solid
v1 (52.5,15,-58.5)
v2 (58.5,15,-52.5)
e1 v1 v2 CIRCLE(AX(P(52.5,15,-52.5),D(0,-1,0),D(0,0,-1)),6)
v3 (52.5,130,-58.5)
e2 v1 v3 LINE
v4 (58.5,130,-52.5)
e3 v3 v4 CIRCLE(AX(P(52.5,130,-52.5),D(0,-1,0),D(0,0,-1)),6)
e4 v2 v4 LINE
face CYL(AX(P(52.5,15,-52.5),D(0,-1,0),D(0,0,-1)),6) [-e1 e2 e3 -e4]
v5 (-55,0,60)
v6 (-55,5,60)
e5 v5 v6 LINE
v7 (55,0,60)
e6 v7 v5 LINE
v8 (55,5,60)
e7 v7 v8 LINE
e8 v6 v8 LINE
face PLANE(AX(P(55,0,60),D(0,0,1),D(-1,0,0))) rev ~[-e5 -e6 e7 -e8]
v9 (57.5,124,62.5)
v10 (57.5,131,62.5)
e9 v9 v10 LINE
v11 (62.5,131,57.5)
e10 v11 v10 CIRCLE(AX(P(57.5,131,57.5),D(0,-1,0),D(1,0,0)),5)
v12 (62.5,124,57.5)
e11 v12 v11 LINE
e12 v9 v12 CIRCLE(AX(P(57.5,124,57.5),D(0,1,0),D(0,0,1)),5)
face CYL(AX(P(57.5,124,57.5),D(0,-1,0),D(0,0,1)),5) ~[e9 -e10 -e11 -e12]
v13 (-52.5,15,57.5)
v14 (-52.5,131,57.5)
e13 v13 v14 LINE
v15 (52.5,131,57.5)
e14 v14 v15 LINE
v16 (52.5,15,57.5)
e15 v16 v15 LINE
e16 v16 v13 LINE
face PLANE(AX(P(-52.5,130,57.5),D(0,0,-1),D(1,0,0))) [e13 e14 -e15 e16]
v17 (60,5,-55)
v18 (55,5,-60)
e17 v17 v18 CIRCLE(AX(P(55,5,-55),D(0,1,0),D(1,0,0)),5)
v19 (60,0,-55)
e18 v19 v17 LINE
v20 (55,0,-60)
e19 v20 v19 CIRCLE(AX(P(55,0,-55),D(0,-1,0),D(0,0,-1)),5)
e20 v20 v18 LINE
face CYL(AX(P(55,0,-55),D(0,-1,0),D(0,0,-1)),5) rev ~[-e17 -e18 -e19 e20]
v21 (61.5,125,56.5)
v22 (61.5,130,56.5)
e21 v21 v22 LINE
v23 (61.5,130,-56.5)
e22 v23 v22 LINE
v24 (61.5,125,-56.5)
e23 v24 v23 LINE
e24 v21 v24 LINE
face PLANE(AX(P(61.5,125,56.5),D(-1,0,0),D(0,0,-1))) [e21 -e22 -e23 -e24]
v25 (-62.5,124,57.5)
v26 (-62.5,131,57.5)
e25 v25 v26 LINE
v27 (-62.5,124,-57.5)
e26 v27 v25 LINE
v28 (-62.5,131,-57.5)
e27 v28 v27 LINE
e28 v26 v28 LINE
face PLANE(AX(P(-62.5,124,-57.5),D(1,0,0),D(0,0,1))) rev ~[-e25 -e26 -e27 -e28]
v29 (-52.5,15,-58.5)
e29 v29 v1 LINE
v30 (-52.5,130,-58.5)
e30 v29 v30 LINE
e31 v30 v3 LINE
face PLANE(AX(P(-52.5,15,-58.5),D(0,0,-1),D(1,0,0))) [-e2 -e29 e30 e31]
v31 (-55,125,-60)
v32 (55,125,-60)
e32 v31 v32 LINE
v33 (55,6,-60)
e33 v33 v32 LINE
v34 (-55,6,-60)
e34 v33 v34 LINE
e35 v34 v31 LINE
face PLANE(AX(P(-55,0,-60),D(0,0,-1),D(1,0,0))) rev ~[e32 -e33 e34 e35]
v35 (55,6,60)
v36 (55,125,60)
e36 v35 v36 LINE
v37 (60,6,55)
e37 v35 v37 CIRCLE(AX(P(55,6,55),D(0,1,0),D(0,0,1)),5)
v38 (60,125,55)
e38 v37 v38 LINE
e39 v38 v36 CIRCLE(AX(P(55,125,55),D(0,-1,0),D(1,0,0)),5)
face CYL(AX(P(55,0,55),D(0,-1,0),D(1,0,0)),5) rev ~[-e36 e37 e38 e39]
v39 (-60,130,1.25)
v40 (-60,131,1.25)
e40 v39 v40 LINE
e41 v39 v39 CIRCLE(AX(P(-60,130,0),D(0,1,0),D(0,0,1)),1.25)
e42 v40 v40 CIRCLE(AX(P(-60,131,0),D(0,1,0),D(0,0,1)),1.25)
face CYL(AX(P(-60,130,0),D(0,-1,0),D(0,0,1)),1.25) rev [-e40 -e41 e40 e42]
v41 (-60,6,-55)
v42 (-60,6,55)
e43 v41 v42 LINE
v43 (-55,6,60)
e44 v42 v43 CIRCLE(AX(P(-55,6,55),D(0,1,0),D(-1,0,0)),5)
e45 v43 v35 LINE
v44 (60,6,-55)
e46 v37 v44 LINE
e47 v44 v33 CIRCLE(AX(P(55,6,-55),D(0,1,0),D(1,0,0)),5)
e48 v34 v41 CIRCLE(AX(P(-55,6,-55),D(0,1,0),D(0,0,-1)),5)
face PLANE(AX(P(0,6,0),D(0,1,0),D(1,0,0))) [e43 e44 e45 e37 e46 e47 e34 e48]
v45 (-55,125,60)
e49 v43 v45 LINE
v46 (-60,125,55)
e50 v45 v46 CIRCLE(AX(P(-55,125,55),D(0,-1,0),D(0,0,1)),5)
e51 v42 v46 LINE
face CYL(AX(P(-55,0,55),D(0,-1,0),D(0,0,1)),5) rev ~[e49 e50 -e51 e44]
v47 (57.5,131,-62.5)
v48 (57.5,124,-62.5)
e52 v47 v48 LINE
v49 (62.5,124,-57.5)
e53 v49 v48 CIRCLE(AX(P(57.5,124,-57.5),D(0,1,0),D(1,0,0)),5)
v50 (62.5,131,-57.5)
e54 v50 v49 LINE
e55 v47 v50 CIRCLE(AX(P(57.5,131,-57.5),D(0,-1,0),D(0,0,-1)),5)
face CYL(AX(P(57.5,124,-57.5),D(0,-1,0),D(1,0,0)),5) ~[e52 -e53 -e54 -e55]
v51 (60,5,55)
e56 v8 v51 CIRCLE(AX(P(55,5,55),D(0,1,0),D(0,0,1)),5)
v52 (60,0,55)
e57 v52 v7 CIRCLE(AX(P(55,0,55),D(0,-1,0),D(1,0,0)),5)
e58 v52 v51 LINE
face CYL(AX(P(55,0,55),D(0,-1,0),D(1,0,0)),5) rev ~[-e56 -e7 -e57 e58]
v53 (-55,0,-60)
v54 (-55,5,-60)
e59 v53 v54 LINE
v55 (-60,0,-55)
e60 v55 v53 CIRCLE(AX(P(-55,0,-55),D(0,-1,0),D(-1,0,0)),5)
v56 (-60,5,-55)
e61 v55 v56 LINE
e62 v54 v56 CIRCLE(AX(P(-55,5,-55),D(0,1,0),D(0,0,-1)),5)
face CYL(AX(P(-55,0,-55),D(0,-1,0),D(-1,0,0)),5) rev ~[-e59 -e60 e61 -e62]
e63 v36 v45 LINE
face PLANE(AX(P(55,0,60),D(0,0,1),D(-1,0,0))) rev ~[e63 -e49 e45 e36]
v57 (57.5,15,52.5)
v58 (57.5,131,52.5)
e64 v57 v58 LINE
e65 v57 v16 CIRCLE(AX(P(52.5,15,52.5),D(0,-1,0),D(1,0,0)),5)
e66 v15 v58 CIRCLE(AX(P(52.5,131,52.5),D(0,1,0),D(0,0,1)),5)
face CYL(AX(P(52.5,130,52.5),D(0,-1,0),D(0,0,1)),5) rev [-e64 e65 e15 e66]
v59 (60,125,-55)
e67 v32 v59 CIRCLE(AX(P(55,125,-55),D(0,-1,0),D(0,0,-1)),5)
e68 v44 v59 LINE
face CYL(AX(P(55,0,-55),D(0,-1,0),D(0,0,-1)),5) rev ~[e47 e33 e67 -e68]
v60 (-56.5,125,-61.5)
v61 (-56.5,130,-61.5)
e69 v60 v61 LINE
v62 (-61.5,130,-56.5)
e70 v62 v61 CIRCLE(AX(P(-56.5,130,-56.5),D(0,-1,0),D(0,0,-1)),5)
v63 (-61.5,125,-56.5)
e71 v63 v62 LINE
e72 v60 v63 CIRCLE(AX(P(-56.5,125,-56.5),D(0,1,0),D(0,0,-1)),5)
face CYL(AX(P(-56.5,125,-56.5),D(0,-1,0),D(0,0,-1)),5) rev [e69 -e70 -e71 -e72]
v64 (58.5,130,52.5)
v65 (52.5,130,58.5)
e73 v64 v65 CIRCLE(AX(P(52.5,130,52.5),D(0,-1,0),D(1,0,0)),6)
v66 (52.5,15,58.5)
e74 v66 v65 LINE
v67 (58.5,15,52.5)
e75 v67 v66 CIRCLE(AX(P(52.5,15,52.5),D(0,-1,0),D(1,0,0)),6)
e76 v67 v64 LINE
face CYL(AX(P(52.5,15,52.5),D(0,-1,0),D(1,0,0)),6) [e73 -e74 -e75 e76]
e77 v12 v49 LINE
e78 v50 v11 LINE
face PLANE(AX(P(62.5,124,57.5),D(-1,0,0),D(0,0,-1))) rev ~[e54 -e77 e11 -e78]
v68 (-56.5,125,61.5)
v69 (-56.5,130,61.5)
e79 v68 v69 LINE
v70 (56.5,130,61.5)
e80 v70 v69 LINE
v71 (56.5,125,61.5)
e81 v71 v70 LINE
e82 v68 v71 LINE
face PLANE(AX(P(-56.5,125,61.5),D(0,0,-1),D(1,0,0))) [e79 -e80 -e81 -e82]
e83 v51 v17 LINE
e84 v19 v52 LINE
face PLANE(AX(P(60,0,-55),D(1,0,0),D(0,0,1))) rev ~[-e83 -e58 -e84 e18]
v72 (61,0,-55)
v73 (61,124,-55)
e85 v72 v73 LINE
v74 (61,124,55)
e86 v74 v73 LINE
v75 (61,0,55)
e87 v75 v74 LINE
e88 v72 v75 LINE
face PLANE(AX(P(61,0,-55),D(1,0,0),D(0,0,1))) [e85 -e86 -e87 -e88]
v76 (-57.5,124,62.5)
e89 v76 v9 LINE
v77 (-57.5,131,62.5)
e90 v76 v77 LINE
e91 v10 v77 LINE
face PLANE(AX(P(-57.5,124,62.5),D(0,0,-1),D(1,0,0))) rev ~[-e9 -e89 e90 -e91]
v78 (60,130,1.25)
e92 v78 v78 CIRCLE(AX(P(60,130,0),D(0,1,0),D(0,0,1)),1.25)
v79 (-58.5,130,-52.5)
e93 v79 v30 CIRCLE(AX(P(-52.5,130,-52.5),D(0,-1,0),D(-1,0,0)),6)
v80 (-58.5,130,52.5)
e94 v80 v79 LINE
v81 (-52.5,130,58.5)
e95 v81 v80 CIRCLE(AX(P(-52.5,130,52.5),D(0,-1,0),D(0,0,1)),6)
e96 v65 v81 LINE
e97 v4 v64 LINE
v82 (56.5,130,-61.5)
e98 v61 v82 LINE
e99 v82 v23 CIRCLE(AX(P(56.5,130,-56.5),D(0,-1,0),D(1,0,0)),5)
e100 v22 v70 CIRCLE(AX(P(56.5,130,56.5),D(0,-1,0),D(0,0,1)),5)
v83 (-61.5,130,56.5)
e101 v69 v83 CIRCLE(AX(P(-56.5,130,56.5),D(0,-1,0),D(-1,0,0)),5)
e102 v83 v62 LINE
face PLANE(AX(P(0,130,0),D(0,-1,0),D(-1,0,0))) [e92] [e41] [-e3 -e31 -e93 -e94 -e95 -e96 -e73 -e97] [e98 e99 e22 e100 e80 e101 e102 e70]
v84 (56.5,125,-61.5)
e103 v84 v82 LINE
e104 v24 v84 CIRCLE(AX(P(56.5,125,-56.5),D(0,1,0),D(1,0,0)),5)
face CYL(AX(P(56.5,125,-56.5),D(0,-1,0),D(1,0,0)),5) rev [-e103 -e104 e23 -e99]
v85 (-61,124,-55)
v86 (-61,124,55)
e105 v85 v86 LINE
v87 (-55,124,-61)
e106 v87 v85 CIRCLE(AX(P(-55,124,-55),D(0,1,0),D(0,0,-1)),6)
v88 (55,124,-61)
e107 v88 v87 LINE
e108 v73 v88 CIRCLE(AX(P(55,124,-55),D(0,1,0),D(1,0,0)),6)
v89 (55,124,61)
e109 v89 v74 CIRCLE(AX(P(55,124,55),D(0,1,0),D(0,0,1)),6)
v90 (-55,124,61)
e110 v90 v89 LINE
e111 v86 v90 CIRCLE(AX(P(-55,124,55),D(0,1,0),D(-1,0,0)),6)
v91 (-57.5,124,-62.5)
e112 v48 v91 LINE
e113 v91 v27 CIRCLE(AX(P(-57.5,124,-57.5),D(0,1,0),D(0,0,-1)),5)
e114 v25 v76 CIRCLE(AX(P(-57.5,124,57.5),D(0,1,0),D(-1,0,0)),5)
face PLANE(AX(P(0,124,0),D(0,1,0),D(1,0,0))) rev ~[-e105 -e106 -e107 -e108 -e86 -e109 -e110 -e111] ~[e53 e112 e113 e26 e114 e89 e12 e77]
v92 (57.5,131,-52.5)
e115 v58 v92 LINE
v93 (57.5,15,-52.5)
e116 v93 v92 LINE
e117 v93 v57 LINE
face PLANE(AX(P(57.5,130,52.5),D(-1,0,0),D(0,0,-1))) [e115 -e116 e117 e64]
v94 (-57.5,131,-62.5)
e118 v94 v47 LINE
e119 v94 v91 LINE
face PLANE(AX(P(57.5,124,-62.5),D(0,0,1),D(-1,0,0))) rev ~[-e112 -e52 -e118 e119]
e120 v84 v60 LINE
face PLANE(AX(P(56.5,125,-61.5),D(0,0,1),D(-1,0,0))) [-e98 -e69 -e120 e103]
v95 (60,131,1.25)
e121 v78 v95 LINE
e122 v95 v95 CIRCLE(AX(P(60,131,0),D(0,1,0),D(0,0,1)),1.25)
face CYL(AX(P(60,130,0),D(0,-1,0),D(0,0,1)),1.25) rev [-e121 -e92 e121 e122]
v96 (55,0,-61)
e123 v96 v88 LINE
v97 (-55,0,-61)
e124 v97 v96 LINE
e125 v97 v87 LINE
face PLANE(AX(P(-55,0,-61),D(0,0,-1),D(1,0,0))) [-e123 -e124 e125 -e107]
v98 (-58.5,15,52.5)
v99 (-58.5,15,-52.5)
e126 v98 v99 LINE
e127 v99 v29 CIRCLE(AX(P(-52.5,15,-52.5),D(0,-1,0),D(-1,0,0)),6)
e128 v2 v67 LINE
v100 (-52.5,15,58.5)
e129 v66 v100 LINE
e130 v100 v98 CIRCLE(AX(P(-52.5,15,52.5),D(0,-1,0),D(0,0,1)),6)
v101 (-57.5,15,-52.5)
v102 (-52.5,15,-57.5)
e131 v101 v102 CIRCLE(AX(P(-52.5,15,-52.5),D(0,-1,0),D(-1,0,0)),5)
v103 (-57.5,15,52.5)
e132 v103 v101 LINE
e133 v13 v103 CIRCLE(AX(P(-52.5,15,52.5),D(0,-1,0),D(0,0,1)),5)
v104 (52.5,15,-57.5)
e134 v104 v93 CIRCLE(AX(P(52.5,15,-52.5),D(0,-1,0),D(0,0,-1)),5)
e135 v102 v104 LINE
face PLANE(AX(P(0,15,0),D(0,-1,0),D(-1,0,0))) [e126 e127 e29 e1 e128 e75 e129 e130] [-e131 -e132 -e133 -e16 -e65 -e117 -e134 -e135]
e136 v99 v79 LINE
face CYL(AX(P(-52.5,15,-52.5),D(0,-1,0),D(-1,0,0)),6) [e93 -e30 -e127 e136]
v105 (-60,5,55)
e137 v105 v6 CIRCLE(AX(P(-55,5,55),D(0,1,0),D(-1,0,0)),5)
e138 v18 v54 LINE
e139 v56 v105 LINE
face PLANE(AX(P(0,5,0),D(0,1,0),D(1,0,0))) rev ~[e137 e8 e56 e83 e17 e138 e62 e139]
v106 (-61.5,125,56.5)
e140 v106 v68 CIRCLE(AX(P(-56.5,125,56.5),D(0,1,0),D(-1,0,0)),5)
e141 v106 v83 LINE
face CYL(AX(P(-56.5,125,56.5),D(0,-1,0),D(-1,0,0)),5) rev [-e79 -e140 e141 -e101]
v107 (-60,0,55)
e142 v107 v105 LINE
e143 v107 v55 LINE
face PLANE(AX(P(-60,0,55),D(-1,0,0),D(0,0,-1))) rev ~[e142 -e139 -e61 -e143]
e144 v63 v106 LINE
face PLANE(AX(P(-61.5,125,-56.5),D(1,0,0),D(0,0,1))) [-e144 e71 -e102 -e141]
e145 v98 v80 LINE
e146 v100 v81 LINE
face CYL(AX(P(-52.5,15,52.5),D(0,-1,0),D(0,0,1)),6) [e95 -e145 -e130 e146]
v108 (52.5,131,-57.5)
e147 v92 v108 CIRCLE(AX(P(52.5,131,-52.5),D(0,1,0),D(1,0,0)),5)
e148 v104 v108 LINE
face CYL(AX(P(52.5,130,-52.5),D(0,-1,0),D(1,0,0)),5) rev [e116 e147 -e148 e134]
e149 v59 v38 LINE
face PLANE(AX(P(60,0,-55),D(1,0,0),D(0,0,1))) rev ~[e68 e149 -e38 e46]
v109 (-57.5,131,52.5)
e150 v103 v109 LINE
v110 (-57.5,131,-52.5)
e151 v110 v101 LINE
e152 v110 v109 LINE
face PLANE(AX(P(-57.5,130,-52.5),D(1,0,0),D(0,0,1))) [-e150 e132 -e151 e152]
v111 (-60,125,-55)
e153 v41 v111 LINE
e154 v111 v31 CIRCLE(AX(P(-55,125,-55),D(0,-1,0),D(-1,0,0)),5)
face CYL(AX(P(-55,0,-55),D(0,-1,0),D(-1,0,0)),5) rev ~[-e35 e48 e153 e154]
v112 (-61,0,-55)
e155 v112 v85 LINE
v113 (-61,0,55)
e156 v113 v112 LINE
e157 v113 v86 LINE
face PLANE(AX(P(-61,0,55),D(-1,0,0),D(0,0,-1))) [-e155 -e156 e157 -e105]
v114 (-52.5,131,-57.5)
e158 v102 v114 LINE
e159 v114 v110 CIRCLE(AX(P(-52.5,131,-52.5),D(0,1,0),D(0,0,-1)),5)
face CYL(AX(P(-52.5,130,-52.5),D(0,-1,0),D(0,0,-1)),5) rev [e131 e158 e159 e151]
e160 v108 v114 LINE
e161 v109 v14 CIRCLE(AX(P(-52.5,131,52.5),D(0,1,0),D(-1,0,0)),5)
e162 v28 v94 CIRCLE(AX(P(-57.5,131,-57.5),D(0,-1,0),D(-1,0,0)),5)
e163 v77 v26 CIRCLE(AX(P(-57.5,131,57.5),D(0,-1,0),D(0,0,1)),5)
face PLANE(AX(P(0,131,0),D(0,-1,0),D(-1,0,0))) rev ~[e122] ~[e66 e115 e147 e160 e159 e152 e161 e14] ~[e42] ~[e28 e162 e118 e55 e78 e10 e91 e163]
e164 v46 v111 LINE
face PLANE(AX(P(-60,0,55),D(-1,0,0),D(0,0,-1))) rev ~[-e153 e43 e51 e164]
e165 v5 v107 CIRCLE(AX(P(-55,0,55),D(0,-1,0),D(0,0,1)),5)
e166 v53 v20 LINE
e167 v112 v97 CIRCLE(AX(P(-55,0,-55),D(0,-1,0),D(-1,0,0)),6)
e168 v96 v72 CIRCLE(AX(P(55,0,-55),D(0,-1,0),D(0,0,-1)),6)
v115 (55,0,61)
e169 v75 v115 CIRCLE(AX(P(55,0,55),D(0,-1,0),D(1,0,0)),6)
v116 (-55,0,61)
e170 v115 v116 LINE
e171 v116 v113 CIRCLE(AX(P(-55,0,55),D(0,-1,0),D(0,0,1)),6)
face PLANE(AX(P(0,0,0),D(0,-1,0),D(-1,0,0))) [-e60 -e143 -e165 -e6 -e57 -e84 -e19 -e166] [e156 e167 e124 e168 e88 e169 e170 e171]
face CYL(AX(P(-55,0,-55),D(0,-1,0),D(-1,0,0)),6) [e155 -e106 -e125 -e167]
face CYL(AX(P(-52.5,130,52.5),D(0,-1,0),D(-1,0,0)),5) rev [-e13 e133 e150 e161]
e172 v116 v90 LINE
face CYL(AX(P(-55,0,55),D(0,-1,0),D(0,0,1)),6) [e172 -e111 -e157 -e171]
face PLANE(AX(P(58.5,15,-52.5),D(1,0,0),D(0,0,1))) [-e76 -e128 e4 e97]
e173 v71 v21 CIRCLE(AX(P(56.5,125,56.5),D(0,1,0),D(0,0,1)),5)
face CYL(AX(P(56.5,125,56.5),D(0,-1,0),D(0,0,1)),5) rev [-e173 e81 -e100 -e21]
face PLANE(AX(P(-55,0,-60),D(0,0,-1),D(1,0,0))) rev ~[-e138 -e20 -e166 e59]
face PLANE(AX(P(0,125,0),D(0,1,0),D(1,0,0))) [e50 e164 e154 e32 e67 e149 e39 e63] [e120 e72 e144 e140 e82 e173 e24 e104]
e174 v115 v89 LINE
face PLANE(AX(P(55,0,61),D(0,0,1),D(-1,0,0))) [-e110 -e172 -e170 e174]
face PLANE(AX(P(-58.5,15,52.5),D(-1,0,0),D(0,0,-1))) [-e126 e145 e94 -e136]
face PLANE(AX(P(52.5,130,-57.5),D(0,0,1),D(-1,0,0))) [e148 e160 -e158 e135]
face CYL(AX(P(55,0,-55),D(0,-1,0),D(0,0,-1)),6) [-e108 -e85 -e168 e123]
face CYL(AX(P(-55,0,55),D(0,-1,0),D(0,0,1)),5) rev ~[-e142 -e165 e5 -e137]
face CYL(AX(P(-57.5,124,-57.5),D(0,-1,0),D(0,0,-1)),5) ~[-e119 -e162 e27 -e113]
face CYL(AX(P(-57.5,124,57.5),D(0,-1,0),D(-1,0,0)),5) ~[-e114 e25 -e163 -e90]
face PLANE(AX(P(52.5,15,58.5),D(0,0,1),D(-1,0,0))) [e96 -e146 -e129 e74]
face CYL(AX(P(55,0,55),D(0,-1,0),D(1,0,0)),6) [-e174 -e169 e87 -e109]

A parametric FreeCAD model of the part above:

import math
import FreeCAD as App
import Part
import Sketcher

V = App.Vector

doc = App.newDocument("Part")
body = doc.addObject("PartDesign::Body", "Body")

sketch1 = body.newObject("Sketcher::SketchObject", "Sketch")
sketch1.AttachmentSupport = (doc.getObject("XZ_Plane"), [""])
sketch1.MapMode = "FlatFace"
sketch1.addGeometry([
    Part.LineSegment(V(-55, 61, 0), V(55, 61, 0)),
    Part.ArcOfCircle(Part.Circle(V(55, 55, 0), V(0, 0, 1), 6), math.radians(0), math.radians(90)),
    Part.LineSegment(V(61, 55, 0), V(61, -55, 0)),
    Part.ArcOfCircle(Part.Circle(V(55, -55, 0), V(0, 0, 1), 6), math.radians(-90), math.radians(0)),
    Part.LineSegment(V(55, -61, 0), V(-55, -61, 0)),
    Part.ArcOfCircle(Part.Circle(V(-55, -55, 0), V(0, 0, 1), 6), math.radians(180), math.radians(270)),
    Part.LineSegment(V(-61, -55, 0), V(-61, 55, 0)),
    Part.ArcOfCircle(Part.Circle(V(-55, 55, 0), V(0, 0, 1), 6), math.radians(90), math.radians(180)),
    Part.LineSegment(V(55, 60, 0), V(-55, 60, 0)),
    Part.ArcOfCircle(Part.Circle(V(-55, 55, 0), V(0, 0, 1), 5), math.radians(90), math.radians(180)),
    Part.LineSegment(V(-60, 55, 0), V(-60, -55, 0)),
    Part.ArcOfCircle(Part.Circle(V(-55, -55, 0), V(0, 0, 1), 5), math.radians(180), math.radians(270)),
    Part.LineSegment(V(-55, -60, 0), V(55, -60, 0)),
    Part.ArcOfCircle(Part.Circle(V(55, -55, 0), V(0, 0, 1), 5), math.radians(-90), math.radians(0)),
    Part.LineSegment(V(60, -55, 0), V(60, 55, 0)),
    Part.ArcOfCircle(Part.Circle(V(55, 55, 0), V(0, 0, 1), 5), math.radians(0), math.radians(90)),
], False)
sketch1.addConstraint([
    Sketcher.Constraint("Tangent", 0, 2, 1, 2),
    Sketcher.Constraint("Tangent", 1, 1, 2, 1),
    Sketcher.Constraint("Tangent", 2, 2, 3, 2),
    Sketcher.Constraint("Tangent", 3, 1, 4, 1),
    Sketcher.Constraint("Tangent", 4, 2, 5, 2),
    Sketcher.Constraint("Tangent", 5, 1, 6, 1),
    Sketcher.Constraint("Tangent", 6, 2, 7, 2),
    Sketcher.Constraint("Tangent", 7, 1, 0, 1),
    Sketcher.Constraint("Tangent", 8, 2, 9, 1),
    Sketcher.Constraint("Tangent", 9, 2, 10, 1),
    Sketcher.Constraint("Tangent", 10, 2, 11, 1),
    Sketcher.Constraint("Tangent", 11, 2, 12, 1),
    Sketcher.Constraint("Tangent", 12, 2, 13, 1),
    Sketcher.Constraint("Tangent", 13, 2, 14, 1),
    Sketcher.Constraint("Tangent", 14, 2, 15, 1),
    Sketcher.Constraint("Tangent", 15, 2, 8, 1),
    Sketcher.Constraint("Horizontal", 0),
    Sketcher.Constraint("Vertical", 2),
    Sketcher.Constraint("Horizontal", 4),
    Sketcher.Constraint("Vertical", 6),
    Sketcher.Constraint("Horizontal", 8),
    Sketcher.Constraint("Vertical", 10),
    Sketcher.Constraint("Horizontal", 12),
    Sketcher.Constraint("Vertical", 14),
    Sketcher.Constraint("Coincident", 9, 3, 7, 3),
    Sketcher.Constraint("Coincident", 11, 3, 5, 3),
    Sketcher.Constraint("Coincident", 13, 3, 3, 3),
    Sketcher.Constraint("Equal", 1, 3),
    Sketcher.Constraint("Equal", 3, 5),
    Sketcher.Constraint("Equal", 5, 7),
    Sketcher.Constraint("Equal", 13, 15),
    Sketcher.Constraint("Symmetric", 1, 3, 5, 3, -1, 1),
    Sketcher.Constraint("Equal", 12, 2),
    Sketcher.Constraint("Radius", 1, 6.0),
    Sketcher.Constraint("Radius", 9, 5.0),
    Sketcher.Constraint("DistanceX", 0, 1, 0, 2, 110.0),
])
pad1 = body.newObject("PartDesign::Pad", "Pad")
pad1.Profile = sketch1
pad1.Length = 125
pad1.Reversed = True

sketch2 = body.newObject("Sketcher::SketchObject", "Sketch001")
sketch2.AttachmentSupport = (doc.getObject("XZ_Plane"), [""])
sketch2.MapMode = "FlatFace"
sketch2.AttachmentOffset = App.Placement(V(0, 0, -5), App.Rotation())
sketch2.addGeometry([
    Part.LineSegment(V(-60, -55, 0), V(-60, 55, 0)),
    Part.ArcOfCircle(Part.Circle(V(-55, 55, 0), V(0, 0, 1), 5), math.radians(90), math.radians(180)),
    Part.LineSegment(V(-55, 60, 0), V(55, 60, 0)),
    Part.ArcOfCircle(Part.Circle(V(55, 55, 0), V(0, 0, 1), 5), math.radians(0), math.radians(90)),
    Part.LineSegment(V(60, 55, 0), V(60, -55, 0)),
    Part.ArcOfCircle(Part.Circle(V(55, -55, 0), V(0, 0, 1), 5), math.radians(-90), math.radians(0)),
    Part.LineSegment(V(55, -60, 0), V(-55, -60, 0)),
    Part.ArcOfCircle(Part.Circle(V(-55, -55, 0), V(0, 0, 1), 5), math.radians(180), math.radians(270)),
], False)
sketch2.addConstraint([
    Sketcher.Constraint("Tangent", 0, 2, 1, 2),
    Sketcher.Constraint("Tangent", 1, 1, 2, 1),
    Sketcher.Constraint("Tangent", 2, 2, 3, 2),
    Sketcher.Constraint("Tangent", 3, 1, 4, 1),
    Sketcher.Constraint("Tangent", 4, 2, 5, 2),
    Sketcher.Constraint("Tangent", 5, 1, 6, 1),
    Sketcher.Constraint("Tangent", 6, 2, 7, 2),
    Sketcher.Constraint("Tangent", 7, 1, 0, 1),
    Sketcher.Constraint("Vertical", 0),
    Sketcher.Constraint("Horizontal", 2),
    Sketcher.Constraint("Vertical", 4),
    Sketcher.Constraint("Horizontal", 6),
    Sketcher.Constraint("Equal", 1, 3),
    Sketcher.Constraint("Equal", 3, 5),
    Sketcher.Constraint("Equal", 5, 7),
    Sketcher.Constraint("Symmetric", 1, 3, 5, 3, -1, 1),
    Sketcher.Constraint("Equal", 6, 0),
    Sketcher.Constraint("Radius", 1, 5.0),
    Sketcher.Constraint("DistanceX", 2, 1, 2, 2, 110.0),
])
pad2 = body.newObject("PartDesign::Pad", "Pad001")
pad2.Profile = sketch2
pad2.Length = 1
pad2.Reversed = True
body2 = doc.addObject("PartDesign::Body", "Body001")

sketch3 = body2.newObject("Sketcher::SketchObject", "Sketch002")
sketch3.AttachmentSupport = (doc.getObject("XZ_Plane001"), [""])
sketch3.MapMode = "FlatFace"
sketch3.AttachmentOffset = App.Placement(V(0, 0, -15), App.Rotation())
sketch3.addGeometry([
    Part.LineSegment(V(52, -58, 0), V(-52, -58, 0)),
    Part.ArcOfCircle(Part.Circle(V(-52, -52, 0), V(0, 0, 1), 6), math.radians(180), math.radians(270)),
    Part.LineSegment(V(-58, -52, 0), V(-58, 52, 0)),
    Part.ArcOfCircle(Part.Circle(V(-52, 52, 0), V(0, 0, 1), 6), math.radians(90), math.radians(180)),
    Part.LineSegment(V(-52, 58, 0), V(52, 58, 0)),
    Part.ArcOfCircle(Part.Circle(V(52, 52, 0), V(0, 0, 1), 6), math.radians(0), math.radians(90)),
    Part.LineSegment(V(58, 52, 0), V(58, -52, 0)),
    Part.ArcOfCircle(Part.Circle(V(52, -52, 0), V(0, 0, 1), 6), math.radians(-90), math.radians(0)),
    Part.LineSegment(V(-52, -58, 0), V(52, -58, 0)),
    Part.ArcOfCircle(Part.Circle(V(52, -52, 0), V(0, 0, 1), 5), math.radians(-90), math.radians(0)),
    Part.LineSegment(V(58, -52, 0), V(58, 52, 0)),
    Part.ArcOfCircle(Part.Circle(V(52, 52, 0), V(0, 0, 1), 5), math.radians(0), math.radians(90)),
    Part.LineSegment(V(52, 58, 0), V(-52, 58, 0)),
    Part.ArcOfCircle(Part.Circle(V(-52, 52, 0), V(0, 0, 1), 5), math.radians(90), math.radians(180)),
    Part.LineSegment(V(-58, 52, 0), V(-58, -52, 0)),
    Part.ArcOfCircle(Part.Circle(V(-52, -52, 0), V(0, 0, 1), 5), math.radians(180), math.radians(270)),
], False)
sketch3.addConstraint([
    Sketcher.Constraint("Tangent", 0, 2, 1, 2),
    Sketcher.Constraint("Tangent", 1, 1, 2, 1),
    Sketcher.Constraint("Tangent", 2, 2, 3, 2),
    Sketcher.Constraint("Tangent", 3, 1, 4, 1),
    Sketcher.Constraint("Tangent", 4, 2, 5, 2),
    Sketcher.Constraint("Tangent", 5, 1, 6, 1),
    Sketcher.Constraint("Tangent", 6, 2, 7, 2),
    Sketcher.Constraint("Tangent", 7, 1, 0, 1),
    Sketcher.Constraint("Tangent", 8, 2, 9, 1),
    Sketcher.Constraint("Tangent", 9, 2, 10, 1),
    Sketcher.Constraint("Tangent", 10, 2, 11, 1),
    Sketcher.Constraint("Tangent", 11, 2, 12, 1),
    Sketcher.Constraint("Tangent", 12, 2, 13, 1),
    Sketcher.Constraint("Tangent", 13, 2, 14, 1),
    Sketcher.Constraint("Tangent", 14, 2, 15, 1),
    Sketcher.Constraint("Tangent", 15, 2, 8, 1),
    Sketcher.Constraint("Horizontal", 0),
    Sketcher.Constraint("Vertical", 2),
    Sketcher.Constraint("Horizontal", 4),
    Sketcher.Constraint("Vertical", 6),
    Sketcher.Constraint("Horizontal", 8),
    Sketcher.Constraint("Vertical", 10),
    Sketcher.Constraint("Horizontal", 12),
    Sketcher.Constraint("Vertical", 14),
    Sketcher.Constraint("Coincident", 9, 3, 7, 3),
    Sketcher.Constraint("Coincident", 11, 3, 5, 3),
    Sketcher.Constraint("Coincident", 13, 3, 3, 3),
    Sketcher.Constraint("Equal", 1, 3),
    Sketcher.Constraint("Equal", 3, 5),
    Sketcher.Constraint("Equal", 5, 7),
    Sketcher.Constraint("Equal", 13, 15),
    Sketcher.Constraint("Symmetric", 1, 3, 5, 3, -1, 1),
    Sketcher.Constraint("Equal", 12, 2),
    Sketcher.Constraint("Radius", 1, 6.0),
    Sketcher.Constraint("Radius", 9, 5.0),
    Sketcher.Constraint("DistanceX", 0, 2, 0, 1, 105.0),
])
pad3 = body2.newObject("PartDesign::Pad", "Pad002")
pad3.Profile = sketch3
pad3.Length = 115
pad3.Reversed = True

sketch4 = body2.newObject("Sketcher::SketchObject", "Sketch003")
sketch4.AttachmentSupport = (doc.getObject("XZ_Plane001"), [""])
sketch4.MapMode = "FlatFace"
sketch4.AttachmentOffset = App.Placement(V(0, 0, -130), App.Rotation())
sketch4.addGeometry([
    Part.LineSegment(V(57.5, -62.5, 0), V(-57.5, -62.5, 0)),
    Part.ArcOfCircle(Part.Circle(V(-57.5, -57.5, 0), V(0, 0, 1), 5), math.radians(180), math.radians(270)),
    Part.LineSegment(V(-62.5, -57.5, 0), V(-62.5, 57.5, 0)),
    Part.ArcOfCircle(Part.Circle(V(-57.5, 57.5, 0), V(0, 0, 1), 5), math.radians(90), math.radians(180)),
    Part.LineSegment(V(-57.5, 62.5, 0), V(57.5, 62.5, 0)),
    Part.ArcOfCircle(Part.Circle(V(57.5, 57.5, 0), V(0, 0, 1), 5), math.radians(0), math.radians(90)),
    Part.LineSegment(V(62.5, 57.5, 0), V(62.5, -57.5, 0)),
    Part.ArcOfCircle(Part.Circle(V(57.5, -57.5, 0), V(0, 0, 1), 5), math.radians(-90), math.radians(0)),
    Part.Circle(V(60, 0, 0), V(0, 0, 1), 1.2),
    Part.ArcOfCircle(Part.Circle(V(-52.5, -52.5, 0), V(0, 0, 1), 5), math.radians(180), math.radians(270)),
    Part.LineSegment(V(-52.5, -57.5, 0), V(52.5, -57.5, 0)),
    Part.ArcOfCircle(Part.Circle(V(52.5, -52.5, 0), V(0, 0, 1), 5), math.radians(-90), math.radians(0)),
    Part.LineSegment(V(57.5, -52.5, 0), V(57.5, 52.5, 0)),
    Part.ArcOfCircle(Part.Circle(V(52.5, 52.5, 0), V(0, 0, 1), 5), math.radians(0), math.radians(90)),
    Part.LineSegment(V(52.5, 57.5, 0), V(-52.5, 57.5, 0)),
    Part.ArcOfCircle(Part.Circle(V(-52.5, 52.5, 0), V(0, 0, 1), 5), math.radians(90), math.radians(180)),
    Part.LineSegment(V(-57.5, 52.5, 0), V(-57.5, -52.5, 0)),
    Part.Circle(V(-60, 0, 0), V(0, 0, 1), 1.2),
], False)
sketch4.addConstraint([
    Sketcher.Constraint("Tangent", 0, 2, 1, 2),
    Sketcher.Constraint("Tangent", 1, 1, 2, 1),
    Sketcher.Constraint("Tangent", 2, 2, 3, 2),
    Sketcher.Constraint("Tangent", 3, 1, 4, 1),
    Sketcher.Constraint("Tangent", 4, 2, 5, 2),
    Sketcher.Constraint("Tangent", 5, 1, 6, 1),
    Sketcher.Constraint("Tangent", 6, 2, 7, 2),
    Sketcher.Constraint("Tangent", 7, 1, 0, 1),
    Sketcher.Constraint("Tangent", 9, 2, 10, 1),
    Sketcher.Constraint("Tangent", 10, 2, 11, 1),
    Sketcher.Constraint("Tangent", 11, 2, 12, 1),
    Sketcher.Constraint("Tangent", 12, 2, 13, 1),
    Sketcher.Constraint("Tangent", 13, 2, 14, 1),
    Sketcher.Constraint("Tangent", 14, 2, 15, 1),
    Sketcher.Constraint("Tangent", 15, 2, 16, 1),
    Sketcher.Constraint("Tangent", 16, 2, 9, 1),
    Sketcher.Constraint("Horizontal", 0),
    Sketcher.Constraint("Vertical", 2),
    Sketcher.Constraint("Horizontal", 4),
    Sketcher.Constraint("Vertical", 6),
    Sketcher.Constraint("Horizontal", 10),
    Sketcher.Constraint("Vertical", 12),
    Sketcher.Constraint("Horizontal", 14),
    Sketcher.Constraint("Vertical", 16),
    Sketcher.Constraint("Equal", 1, 3),
    Sketcher.Constraint("Equal", 3, 5),
    Sketcher.Constraint("Equal", 5, 7),
    Sketcher.Constraint("Equal", 7, 9),
    Sketcher.Constraint("Equal", 9, 11),
    Sketcher.Constraint("Equal", 11, 13),
    Sketcher.Constraint("Equal", 13, 15),
    Sketcher.Constraint("Equal", 8, 17),
    Sketcher.Constraint("Symmetric", 1, 3, 5, 3, -1, 1),
    Sketcher.Constraint("Symmetric", 9, 3, 13, 3, -1, 1),
    Sketcher.Constraint("Symmetric", 8, 3, 17, 3, -1, 1),
    Sketcher.Constraint("PointOnObject", 8, 3, -1),
    Sketcher.Constraint("Horizontal", 6, 2, 9, 2),
    Sketcher.Constraint("Vertical", 7, 1, 11, 2),
    Sketcher.Constraint("Equal", 4, 2),
    Sketcher.Constraint("Radius", 1, 5.0),
    Sketcher.Constraint("Diameter", 8, 2.5),
    Sketcher.Constraint("DistanceX", 0, 2, 0, 1, 115.0),
    Sketcher.Constraint("DistanceX", -1, 1, 8, 3, 60.0),
])
pad4 = body2.newObject("PartDesign::Pad", "Pad003")
pad4.Profile = sketch4
pad4.Length = 1
pad4.Reversed = True

sketch5 = body2.newObject("Sketcher::SketchObject", "Sketch004")
sketch5.AttachmentSupport = (doc.getObject("XZ_Plane001"), [""])
sketch5.MapMode = "FlatFace"
sketch5.AttachmentOffset = App.Placement(V(0, 0, -125), App.Rotation())
sketch5.addGeometry([
    Part.LineSegment(V(62, 58, 0), V(62, -58, 0)),
    Part.ArcOfCircle(Part.Circle(V(58, -58, 0), V(0, 0, 1), 5), math.radians(-90), math.radians(0)),
    Part.LineSegment(V(58, -62, 0), V(-58, -62, 0)),
    Part.ArcOfCircle(Part.Circle(V(-58, -58, 0), V(0, 0, 1), 5), math.radians(180), math.radians(270)),
    Part.LineSegment(V(-62, -58, 0), V(-62, 58, 0)),
    Part.ArcOfCircle(Part.Circle(V(-58, 58, 0), V(0, 0, 1), 5), math.radians(90), math.radians(180)),
    Part.LineSegment(V(-58, 62, 0), V(58, 62, 0)),
    Part.ArcOfCircle(Part.Circle(V(58, 58, 0), V(0, 0, 1), 5), math.radians(0), math.radians(90)),
    Part.LineSegment(V(56, 62, 0), V(-56, 62, 0)),
    Part.ArcOfCircle(Part.Circle(V(-56, 56, 0), V(0, 0, 1), 5), math.radians(90), math.radians(180)),
    Part.LineSegment(V(-62, 56, 0), V(-62, -56, 0)),
    Part.ArcOfCircle(Part.Circle(V(-56, -56, 0), V(0, 0, 1), 5), math.radians(180), math.radians(270)),
    Part.LineSegment(V(-56, -62, 0), V(56, -62, 0)),
    Part.ArcOfCircle(Part.Circle(V(56, -56, 0), V(0, 0, 1), 5), math.radians(-90), math.radians(0)),
    Part.LineSegment(V(62, -56, 0), V(62, 56, 0)),
    Part.ArcOfCircle(Part.Circle(V(56, 56, 0), V(0, 0, 1), 5), math.radians(0), math.radians(90)),
], False)
sketch5.addConstraint([
    Sketcher.Constraint("Tangent", 0, 2, 1, 2),
    Sketcher.Constraint("Tangent", 1, 1, 2, 1),
    Sketcher.Constraint("Tangent", 2, 2, 3, 2),
    Sketcher.Constraint("Tangent", 3, 1, 4, 1),
    Sketcher.Constraint("Tangent", 4, 2, 5, 2),
    Sketcher.Constraint("Tangent", 5, 1, 6, 1),
    Sketcher.Constraint("Tangent", 6, 2, 7, 2),
    Sketcher.Constraint("Tangent", 7, 1, 0, 1),
    Sketcher.Constraint("Tangent", 8, 2, 9, 1),
    Sketcher.Constraint("Tangent", 9, 2, 10, 1),
    Sketcher.Constraint("Tangent", 10, 2, 11, 1),
    Sketcher.Constraint("Tangent", 11, 2, 12, 1),
    Sketcher.Constraint("Tangent", 12, 2, 13, 1),
    Sketcher.Constraint("Tangent", 13, 2, 14, 1),
    Sketcher.Constraint("Tangent", 14, 2, 15, 1),
    Sketcher.Constraint("Tangent", 15, 2, 8, 1),
    Sketcher.Constraint("Vertical", 0),
    Sketcher.Constraint("Horizontal", 2),
    Sketcher.Constraint("Vertical", 4),
    Sketcher.Constraint("Horizontal", 6),
    Sketcher.Constraint("Horizontal", 8),
    Sketcher.Constraint("Vertical", 10),
    Sketcher.Constraint("Horizontal", 12),
    Sketcher.Constraint("Vertical", 14),
    Sketcher.Constraint("Equal", 1, 3),
    Sketcher.Constraint("Equal", 3, 5),
    Sketcher.Constraint("Equal", 5, 7),
    Sketcher.Constraint("Equal", 7, 9),
    Sketcher.Constraint("Equal", 9, 11),
    Sketcher.Constraint("Equal", 11, 13),
    Sketcher.Constraint("Equal", 13, 15),
    Sketcher.Constraint("Symmetric", 1, 3, 5, 3, -1, 1),
    Sketcher.Constraint("Symmetric", 9, 3, 13, 3, -1, 1),
    Sketcher.Constraint("Equal", 6, 0),
    Sketcher.Constraint("Equal", 12, 10),
    Sketcher.Constraint("Radius", 1, 5.0),
    Sketcher.Constraint("DistanceX", 2, 2, 2, 1, 115.0),
    Sketcher.Constraint("DistanceX", 8, 2, 8, 1, 113.0),
])
pad5 = body2.newObject("PartDesign::Pad", "Pad004")
pad5.Profile = sketch5
pad5.Length = 5
pad5.Reversed = True
body.AllowCompound = True
doc.recompute()

boolean = body.newObject("PartDesign::Boolean", "Boolean")
boolean.Type = "Fuse"
boolean.addObjects([body2])

sketch6 = body.newObject("Sketcher::SketchObject", "Sketch005")
sketch6.AttachmentSupport = (doc.getObject("XZ_Plane"), [""])
sketch6.MapMode = "FlatFace"
sketch6.AttachmentOffset = App.Placement(V(0, 0, -124), App.Rotation())
sketch6.addGeometry([
    Part.LineSegment(V(-62, -58, 0), V(-62, 58, 0)),
    Part.ArcOfCircle(Part.Circle(V(-58, 58, 0), V(0, 0, 1), 5), math.radians(90), math.radians(180)),
    Part.LineSegment(V(-58, 62, 0), V(58, 62, 0)),
    Part.ArcOfCircle(Part.Circle(V(58, 58, 0), V(0, 0, 1), 5), math.radians(0), math.radians(90)),
    Part.LineSegment(V(62, 58, 0), V(62, -58, 0)),
    Part.ArcOfCircle(Part.Circle(V(58, -58, 0), V(0, 0, 1), 5), math.radians(-90), math.radians(0)),
    Part.LineSegment(V(58, -62, 0), V(-58, -62, 0)),
    Part.ArcOfCircle(Part.Circle(V(-58, -58, 0), V(0, 0, 1), 5), math.radians(180), math.radians(270)),
    Part.LineSegment(V(-55, -61, 0), V(55, -61, 0)),
    Part.ArcOfCircle(Part.Circle(V(55, -55, 0), V(0, 0, 1), 6), math.radians(-90), math.radians(0)),
    Part.LineSegment(V(61, -55, 0), V(61, 55, 0)),
    Part.ArcOfCircle(Part.Circle(V(55, 55, 0), V(0, 0, 1), 6), math.radians(0), math.radians(90)),
    Part.LineSegment(V(55, 61, 0), V(-55, 61, 0)),
    Part.ArcOfCircle(Part.Circle(V(-55, 55, 0), V(0, 0, 1), 6), math.radians(90), math.radians(180)),
    Part.LineSegment(V(-61, 55, 0), V(-61, -55, 0)),
    Part.ArcOfCircle(Part.Circle(V(-55, -55, 0), V(0, 0, 1), 6), math.radians(180), math.radians(270)),
], False)
sketch6.addConstraint([
    Sketcher.Constraint("Tangent", 0, 2, 1, 2),
    Sketcher.Constraint("Tangent", 1, 1, 2, 1),
    Sketcher.Constraint("Tangent", 2, 2, 3, 2),
    Sketcher.Constraint("Tangent", 3, 1, 4, 1),
    Sketcher.Constraint("Tangent", 4, 2, 5, 2),
    Sketcher.Constraint("Tangent", 5, 1, 6, 1),
    Sketcher.Constraint("Tangent", 6, 2, 7, 2),
    Sketcher.Constraint("Tangent", 7, 1, 0, 1),
    Sketcher.Constraint("Tangent", 8, 2, 9, 1),
    Sketcher.Constraint("Tangent", 9, 2, 10, 1),
    Sketcher.Constraint("Tangent", 10, 2, 11, 1),
    Sketcher.Constraint("Tangent", 11, 2, 12, 1),
    Sketcher.Constraint("Tangent", 12, 2, 13, 1),
    Sketcher.Constraint("Tangent", 13, 2, 14, 1),
    Sketcher.Constraint("Tangent", 14, 2, 15, 1),
    Sketcher.Constraint("Tangent", 15, 2, 8, 1),
    Sketcher.Constraint("Vertical", 0),
    Sketcher.Constraint("Horizontal", 2),
    Sketcher.Constraint("Vertical", 4),
    Sketcher.Constraint("Horizontal", 6),
    Sketcher.Constraint("Horizontal", 8),
    Sketcher.Constraint("Vertical", 10),
    Sketcher.Constraint("Horizontal", 12),
    Sketcher.Constraint("Vertical", 14),
    Sketcher.Constraint("Equal", 1, 3),
    Sketcher.Constraint("Equal", 3, 5),
    Sketcher.Constraint("Equal", 5, 7),
    Sketcher.Constraint("Equal", 9, 11),
    Sketcher.Constraint("Equal", 11, 13),
    Sketcher.Constraint("Equal", 13, 15),
    Sketcher.Constraint("Symmetric", 1, 3, 5, 3, -1, 1),
    Sketcher.Constraint("Symmetric", 9, 3, 13, 3, -1, 1),
    Sketcher.Constraint("Equal", 6, 0),
    Sketcher.Constraint("Equal", 12, 10),
    Sketcher.Constraint("Radius", 1, 5.0),
    Sketcher.Constraint("Radius", 9, 6.0),
    Sketcher.Constraint("DistanceX", 2, 1, 2, 2, 115.0),
    Sketcher.Constraint("DistanceX", 8, 1, 8, 2, 110.0),
])
pad6 = body.newObject("PartDesign::Pad", "Pad005")
pad6.Profile = sketch6
pad6.Length = 1
pad6.Reversed = True

doc.recompute()
